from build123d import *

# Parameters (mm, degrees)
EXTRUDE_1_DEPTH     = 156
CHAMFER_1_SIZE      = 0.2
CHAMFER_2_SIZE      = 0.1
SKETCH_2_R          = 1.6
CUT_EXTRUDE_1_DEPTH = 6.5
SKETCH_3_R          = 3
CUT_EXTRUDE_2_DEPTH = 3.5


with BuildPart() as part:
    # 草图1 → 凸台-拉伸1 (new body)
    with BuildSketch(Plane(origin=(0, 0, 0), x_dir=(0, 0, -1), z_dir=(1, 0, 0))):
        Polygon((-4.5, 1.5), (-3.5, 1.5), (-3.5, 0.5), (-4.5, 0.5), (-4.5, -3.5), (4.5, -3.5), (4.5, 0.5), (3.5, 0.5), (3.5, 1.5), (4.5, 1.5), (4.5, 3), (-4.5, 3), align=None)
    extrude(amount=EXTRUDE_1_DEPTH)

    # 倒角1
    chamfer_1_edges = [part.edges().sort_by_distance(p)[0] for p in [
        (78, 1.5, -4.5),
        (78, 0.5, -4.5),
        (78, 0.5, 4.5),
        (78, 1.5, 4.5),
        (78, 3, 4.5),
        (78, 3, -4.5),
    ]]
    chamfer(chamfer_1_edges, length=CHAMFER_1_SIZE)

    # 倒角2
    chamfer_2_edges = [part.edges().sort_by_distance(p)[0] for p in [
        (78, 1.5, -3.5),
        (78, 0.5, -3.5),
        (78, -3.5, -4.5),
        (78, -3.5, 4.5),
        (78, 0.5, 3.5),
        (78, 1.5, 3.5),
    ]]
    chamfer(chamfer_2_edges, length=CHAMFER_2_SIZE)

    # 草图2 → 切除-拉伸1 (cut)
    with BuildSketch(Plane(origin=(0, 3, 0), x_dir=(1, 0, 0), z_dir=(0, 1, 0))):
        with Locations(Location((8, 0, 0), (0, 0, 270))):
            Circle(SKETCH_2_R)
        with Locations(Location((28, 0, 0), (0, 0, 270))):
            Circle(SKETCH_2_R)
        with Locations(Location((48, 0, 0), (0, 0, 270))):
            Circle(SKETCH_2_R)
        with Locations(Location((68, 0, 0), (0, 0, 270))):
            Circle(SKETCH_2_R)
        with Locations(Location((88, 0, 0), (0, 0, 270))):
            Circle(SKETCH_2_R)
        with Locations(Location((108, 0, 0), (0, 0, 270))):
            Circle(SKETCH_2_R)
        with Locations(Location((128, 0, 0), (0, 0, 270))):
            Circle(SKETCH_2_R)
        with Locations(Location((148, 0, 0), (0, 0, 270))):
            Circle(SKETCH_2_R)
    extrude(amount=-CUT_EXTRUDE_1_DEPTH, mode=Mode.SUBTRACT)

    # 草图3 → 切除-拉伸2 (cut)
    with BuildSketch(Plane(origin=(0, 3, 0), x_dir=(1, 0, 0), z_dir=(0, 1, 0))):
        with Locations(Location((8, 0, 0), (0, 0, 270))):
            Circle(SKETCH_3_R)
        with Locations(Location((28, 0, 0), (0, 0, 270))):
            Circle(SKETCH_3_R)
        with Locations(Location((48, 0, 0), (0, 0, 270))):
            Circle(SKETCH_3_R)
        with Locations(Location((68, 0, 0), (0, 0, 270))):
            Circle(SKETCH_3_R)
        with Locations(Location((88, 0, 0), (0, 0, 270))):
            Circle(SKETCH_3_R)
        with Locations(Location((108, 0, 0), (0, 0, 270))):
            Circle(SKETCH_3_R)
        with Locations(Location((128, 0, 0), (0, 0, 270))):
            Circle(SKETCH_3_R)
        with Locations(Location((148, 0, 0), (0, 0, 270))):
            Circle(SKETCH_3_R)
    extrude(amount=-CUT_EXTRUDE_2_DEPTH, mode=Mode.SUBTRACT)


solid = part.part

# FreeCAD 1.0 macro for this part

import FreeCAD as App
import Part
import Sketcher

V = App.Vector
Q = App.Units.Quantity


def edges_at(feature, points):
    """Names of the edges that pass closest to the given points."""
    edges = feature.Shape.Edges
    near = lambda p: min(range(len(edges)), key=lambda i: edges[i].distToShape(Part.Vertex(*p))[0])
    return sorted({f"Edge{near(p) + 1}" for p in points})

doc = App.newDocument("Part")
body = doc.addObject("PartDesign::Body", "Body")

# Sketch on YZ plane
sketch1 = doc.addObject("Sketcher::SketchObject", "Sketch")
body.addObject(sketch1)
sketch1.AttachmentSupport = (doc.YZ_Plane, [""])
sketch1.MapMode = "FlatFace"
sketch1.addGeometry(Part.LineSegment(V(1.5, 4.5, 0), V(1.5, 3.5, 0)), False)
sketch1.addGeometry(Part.LineSegment(V(1.5, 3.5, 0), V(0.5, 3.5, 0)), False)
sketch1.addGeometry(Part.LineSegment(V(0.5, 3.5, 0), V(0.5, 4.5, 0)), False)
sketch1.addGeometry(Part.LineSegment(V(0.5, 4.5, 0), V(-3.5, 4.5, 0)), False)
sketch1.addGeometry(Part.LineSegment(V(-3.5, 4.5, 0), V(-3.5, -4.5, 0)), False)
sketch1.addGeometry(Part.LineSegment(V(-3.5, -4.5, 0), V(0.5, -4.5, 0)), False)
sketch1.addGeometry(Part.LineSegment(V(0.5, -4.5, 0), V(0.5, -3.5, 0)), False)
sketch1.addGeometry(Part.LineSegment(V(0.5, -3.5, 0), V(1.5, -3.5, 0)), False)
sketch1.addGeometry(Part.LineSegment(V(1.5, -3.5, 0), V(1.5, -4.5, 0)), False)
sketch1.addGeometry(Part.LineSegment(V(1.5, -4.5, 0), V(3, -4.5, 0)), False)
sketch1.addGeometry(Part.LineSegment(V(3, -4.5, 0), V(3, 4.5, 0)), False)
sketch1.addGeometry(Part.LineSegment(V(3, 4.5, 0), V(1.5, 4.5, 0)), False)
sketch1.addConstraint(Sketcher.Constraint("Coincident", 0, 2, 1, 1))
sketch1.addConstraint(Sketcher.Constraint("Coincident", 1, 2, 2, 1))
sketch1.addConstraint(Sketcher.Constraint("Coincident", 2, 2, 3, 1))
sketch1.addConstraint(Sketcher.Constraint("Coincident", 3, 2, 4, 1))
sketch1.addConstraint(Sketcher.Constraint("Coincident", 4, 2, 5, 1))
sketch1.addConstraint(Sketcher.Constraint("Coincident", 5, 2, 6, 1))
sketch1.addConstraint(Sketcher.Constraint("Coincident", 6, 2, 7, 1))
sketch1.addConstraint(Sketcher.Constraint("Coincident", 7, 2, 8, 1))
sketch1.addConstraint(Sketcher.Constraint("Coincident", 8, 2, 9, 1))
sketch1.addConstraint(Sketcher.Constraint("Coincident", 9, 2, 10, 1))
sketch1.addConstraint(Sketcher.Constraint("Coincident", 10, 2, 11, 1))
sketch1.addConstraint(Sketcher.Constraint("Coincident", 11, 2, 0, 1))
sketch1.addConstraint(Sketcher.Constraint("Vertical", 0))
sketch1.addConstraint(Sketcher.Constraint("Horizontal", 1))
sketch1.addConstraint(Sketcher.Constraint("Vertical", 2))
sketch1.addConstraint(Sketcher.Constraint("Horizontal", 3))
sketch1.addConstraint(Sketcher.Constraint("Vertical", 4))
sketch1.addConstraint(Sketcher.Constraint("Horizontal", 5))
sketch1.addConstraint(Sketcher.Constraint("Vertical", 6))
sketch1.addConstraint(Sketcher.Constraint("Horizontal", 7))
sketch1.addConstraint(Sketcher.Constraint("Vertical", 8))
sketch1.addConstraint(Sketcher.Constraint("Horizontal", 9))
sketch1.addConstraint(Sketcher.Constraint("Vertical", 10))
sketch1.addConstraint(Sketcher.Constraint("Horizontal", 11))
sketch1.addConstraint(Sketcher.Constraint("Symmetric", 2, 2, 5, 2, -1))
sketch1.addConstraint(Sketcher.Constraint("Symmetric", 0, 2, 7, 2, -1))
sketch1.addConstraint(Sketcher.Constraint("Horizontal", 5, 2, 8, 2))
sketch1.addConstraint(Sketcher.Constraint("Horizontal", 3, 2, 10, 2))
sketch1.addConstraint(Sketcher.Constraint("Equal", 7, 0))
sketch1.addConstraint(Sketcher.Constraint("DistanceX", 1, 2, 1, 1, Q("1 mm")))
sketch1.addConstraint(Sketcher.Constraint("DistanceX", 3, 2, 3, 1, Q("4 mm")))
sketch1.addConstraint(Sketcher.Constraint("DistanceY", 4, 2, 4, 1, Q("9 mm")))
sketch1.addConstraint(Sketcher.Constraint("DistanceX", 9, 1, 9, 2, Q("1.5 mm")))
sketch1.addConstraint(Sketcher.Constraint("DistanceX", -1, 1, 9, 2, Q("3 mm")))
pad1 = doc.addObject("PartDesign::Pad", "Pad")
body.addObject(pad1)
pad1.Profile = sketch1
pad1.Length = 156
doc.recompute()

chamfer = doc.addObject("PartDesign::Chamfer", "Chamfer")
body.addObject(chamfer)
chamfer.Base = (pad1, edges_at(pad1, [
    (78, 1.5, -4.5),
    (78, 0.5, -4.5),
    (78, 0.5, 4.5),
    (78, 1.5, 4.5),
    (78, 3, 4.5),
    (78, 3, -4.5),
]))
chamfer.Size = 0.2
doc.recompute()

chamfer2 = doc.addObject("PartDesign::Chamfer", "Chamfer001")
body.addObject(chamfer2)
chamfer2.Base = (chamfer, edges_at(chamfer, [
    (78, 1.5, -3.5),
    (78, 0.5, -3.5),
    (78, -3.5, -4.5),
    (78, -3.5, 4.5),
    (78, 0.5, 3.5),
    (78, 1.5, 3.5),
]))
chamfer2.Size = 0.1

# Sketch on XZ plane
sketch2 = doc.addObject("Sketcher::SketchObject", "Sketch001")
body.addObject(sketch2)
sketch2.AttachmentSupport = (doc.XZ_Plane, [""])
sketch2.MapMode = "FlatFace"
sketch2.AttachmentOffset = App.Placement(V(0, 0, -3), App.Rotation())
sketch2.addGeometry(Part.Circle(V(8, 0, 0), V(0, 0, 1), 1.6), False)
sketch2.addGeometry(Part.Circle(V(28, 0, 0), V(0, 0, 1), 1.6), False)
sketch2.addGeometry(Part.Circle(V(48, 0, 0), V(0, 0, 1), 1.6), False)
sketch2.addGeometry(Part.Circle(V(68, 0, 0), V(0, 0, 1), 1.6), False)
sketch2.addGeometry(Part.Circle(V(88, 0, 0), V(0, 0, 1), 1.6), False)
sketch2.addGeometry(Part.Circle(V(108, 0, 0), V(0, 0, 1), 1.6), False)
sketch2.addGeometry(Part.Circle(V(128, 0, 0), V(0, 0, 1), 1.6), False)
sketch2.addGeometry(Part.Circle(V(148, 0, 0), V(0, 0, 1), 1.6), False)
sketch2.addConstraint(Sketcher.Constraint("Equal", 0, 1))
sketch2.addConstraint(Sketcher.Constraint("Equal", 1, 2))
sketch2.addConstraint(Sketcher.Constraint("Equal", 2, 3))
sketch2.addConstraint(Sketcher.Constraint("Equal", 3, 4))
sketch2.addConstraint(Sketcher.Constraint("Equal", 4, 5))
sketch2.addConstraint(Sketcher.Constraint("Equal", 5, 6))
sketch2.addConstraint(Sketcher.Constraint("Equal", 6, 7))
sketch2.addConstraint(Sketcher.Constraint("PointOnObject", 0, 3, -1))
sketch2.addConstraint(Sketcher.Constraint("PointOnObject", 1, 3, -1))
sketch2.addConstraint(Sketcher.Constraint("PointOnObject", 2, 3, -1))
sketch2.addConstraint(Sketcher.Constraint("PointOnObject", 3, 3, -1))
sketch2.addConstraint(Sketcher.Constraint("PointOnObject", 4, 3, -1))
sketch2.addConstraint(Sketcher.Constraint("PointOnObject", 5, 3, -1))
sketch2.addConstraint(Sketcher.Constraint("PointOnObject", 6, 3, -1))
sketch2.addConstraint(Sketcher.Constraint("PointOnObject", 7, 3, -1))
sketch2.addConstraint(Sketcher.Constraint("Diameter", 0, Q("3.2 mm")))
sketch2.addConstraint(Sketcher.Constraint("DistanceX", -1, 1, 0, 3, Q("8 mm")))
sketch2.addConstraint(Sketcher.Constraint("DistanceX", -1, 1, 1, 3, Q("28 mm")))
sketch2.addConstraint(Sketcher.Constraint("DistanceX", -1, 1, 2, 3, Q("48 mm")))
sketch2.addConstraint(Sketcher.Constraint("DistanceX", -1, 1, 3, 3, Q("68 mm")))
sketch2.addConstraint(Sketcher.Constraint("DistanceX", -1, 1, 4, 3, Q("88 mm")))
sketch2.addConstraint(Sketcher.Constraint("DistanceX", -1, 1, 5, 3, Q("108 mm")))
sketch2.addConstraint(Sketcher.Constraint("DistanceX", -1, 1, 6, 3, Q("128 mm")))
sketch2.addConstraint(Sketcher.Constraint("DistanceX", -1, 1, 7, 3, Q("148 mm")))
pocket1 = doc.addObject("PartDesign::Pocket", "Pocket")
body.addObject(pocket1)
pocket1.Profile = sketch2
pocket1.Length = 6.5
pocket1.Reversed = True

# Sketch on XZ plane
sketch3 = doc.addObject("Sketcher::SketchObject", "Sketch002")
body.addObject(sketch3)
sketch3.AttachmentSupport = (doc.XZ_Plane, [""])
sketch3.MapMode = "FlatFace"
sketch3.AttachmentOffset = App.Placement(V(0, 0, -3), App.Rotation())
sketch3.addGeometry(Part.Circle(V(8, 0, 0), V(0, 0, 1), 3), False)
sketch3.addGeometry(Part.Circle(V(28, 0, 0), V(0, 0, 1), 3), False)
sketch3.addGeometry(Part.Circle(V(48, 0, 0), V(0, 0, 1), 3), False)
sketch3.addGeometry(Part.Circle(V(68, 0, 0), V(0, 0, 1), 3), False)
sketch3.addGeometry(Part.Circle(V(88, 0, 0), V(0, 0, 1), 3), False)
sketch3.addGeometry(Part.Circle(V(108, 0, 0), V(0, 0, 1), 3), False)
sketch3.addGeometry(Part.Circle(V(128, 0, 0), V(0, 0, 1), 3), False)
sketch3.addGeometry(Part.Circle(V(148, 0, 0), V(0, 0, 1), 3), False)
sketch3.addConstraint(Sketcher.Constraint("Equal", 0, 1))
sketch3.addConstraint(Sketcher.Constraint("Equal", 1, 2))
sketch3.addConstraint(Sketcher.Constraint("Equal", 2, 3))
sketch3.addConstraint(Sketcher.Constraint("Equal", 3, 4))
sketch3.addConstraint(Sketcher.Constraint("Equal", 4, 5))
sketch3.addConstraint(Sketcher.Constraint("Equal", 5, 6))
sketch3.addConstraint(Sketcher.Constraint("Equal", 6, 7))
sketch3.addConstraint(Sketcher.Constraint("PointOnObject", 0, 3, -1))
sketch3.addConstraint(Sketcher.Constraint("PointOnObject", 1, 3, -1))
sketch3.addConstraint(Sketcher.Constraint("PointOnObject", 2, 3, -1))
sketch3.addConstraint(Sketcher.Constraint("PointOnObject", 3, 3, -1))
sketch3.addConstraint(Sketcher.Constraint("PointOnObject", 4, 3, -1))
sketch3.addConstraint(Sketcher.Constraint("PointOnObject", 5, 3, -1))
sketch3.addConstraint(Sketcher.Constraint("PointOnObject", 6, 3, -1))
sketch3.addConstraint(Sketcher.Constraint("PointOnObject", 7, 3, -1))
sketch3.addConstraint(Sketcher.Constraint("Diameter", 0, Q("6 mm")))
sketch3.addConstraint(Sketcher.Constraint("DistanceX", -1, 1, 0, 3, Q("8 mm")))
sketch3.addConstraint(Sketcher.Constraint("DistanceX", -1, 1, 1, 3, Q("28 mm")))
sketch3.addConstraint(Sketcher.Constraint("DistanceX", -1, 1, 2, 3, Q("48 mm")))
sketch3.addConstraint(Sketcher.Constraint("DistanceX", -1, 1, 3, 3, Q("68 mm")))
sketch3.addConstraint(Sketcher.Constraint("DistanceX", -1, 1, 4, 3, Q("88 mm")))
sketch3.addConstraint(Sketcher.Constraint("DistanceX", -1, 1, 5, 3, Q("108 mm")))
sketch3.addConstraint(Sketcher.Constraint("DistanceX", -1, 1, 6, 3, Q("128 mm")))
sketch3.addConstraint(Sketcher.Constraint("DistanceX", -1, 1, 7, 3, Q("148 mm")))
pocket2 = doc.addObject("PartDesign::Pocket", "Pocket001")
body.addObject(pocket2)
pocket2.Profile = sketch3
pocket2.Length = 3.5
pocket2.Reversed = True

doc.recompute()
